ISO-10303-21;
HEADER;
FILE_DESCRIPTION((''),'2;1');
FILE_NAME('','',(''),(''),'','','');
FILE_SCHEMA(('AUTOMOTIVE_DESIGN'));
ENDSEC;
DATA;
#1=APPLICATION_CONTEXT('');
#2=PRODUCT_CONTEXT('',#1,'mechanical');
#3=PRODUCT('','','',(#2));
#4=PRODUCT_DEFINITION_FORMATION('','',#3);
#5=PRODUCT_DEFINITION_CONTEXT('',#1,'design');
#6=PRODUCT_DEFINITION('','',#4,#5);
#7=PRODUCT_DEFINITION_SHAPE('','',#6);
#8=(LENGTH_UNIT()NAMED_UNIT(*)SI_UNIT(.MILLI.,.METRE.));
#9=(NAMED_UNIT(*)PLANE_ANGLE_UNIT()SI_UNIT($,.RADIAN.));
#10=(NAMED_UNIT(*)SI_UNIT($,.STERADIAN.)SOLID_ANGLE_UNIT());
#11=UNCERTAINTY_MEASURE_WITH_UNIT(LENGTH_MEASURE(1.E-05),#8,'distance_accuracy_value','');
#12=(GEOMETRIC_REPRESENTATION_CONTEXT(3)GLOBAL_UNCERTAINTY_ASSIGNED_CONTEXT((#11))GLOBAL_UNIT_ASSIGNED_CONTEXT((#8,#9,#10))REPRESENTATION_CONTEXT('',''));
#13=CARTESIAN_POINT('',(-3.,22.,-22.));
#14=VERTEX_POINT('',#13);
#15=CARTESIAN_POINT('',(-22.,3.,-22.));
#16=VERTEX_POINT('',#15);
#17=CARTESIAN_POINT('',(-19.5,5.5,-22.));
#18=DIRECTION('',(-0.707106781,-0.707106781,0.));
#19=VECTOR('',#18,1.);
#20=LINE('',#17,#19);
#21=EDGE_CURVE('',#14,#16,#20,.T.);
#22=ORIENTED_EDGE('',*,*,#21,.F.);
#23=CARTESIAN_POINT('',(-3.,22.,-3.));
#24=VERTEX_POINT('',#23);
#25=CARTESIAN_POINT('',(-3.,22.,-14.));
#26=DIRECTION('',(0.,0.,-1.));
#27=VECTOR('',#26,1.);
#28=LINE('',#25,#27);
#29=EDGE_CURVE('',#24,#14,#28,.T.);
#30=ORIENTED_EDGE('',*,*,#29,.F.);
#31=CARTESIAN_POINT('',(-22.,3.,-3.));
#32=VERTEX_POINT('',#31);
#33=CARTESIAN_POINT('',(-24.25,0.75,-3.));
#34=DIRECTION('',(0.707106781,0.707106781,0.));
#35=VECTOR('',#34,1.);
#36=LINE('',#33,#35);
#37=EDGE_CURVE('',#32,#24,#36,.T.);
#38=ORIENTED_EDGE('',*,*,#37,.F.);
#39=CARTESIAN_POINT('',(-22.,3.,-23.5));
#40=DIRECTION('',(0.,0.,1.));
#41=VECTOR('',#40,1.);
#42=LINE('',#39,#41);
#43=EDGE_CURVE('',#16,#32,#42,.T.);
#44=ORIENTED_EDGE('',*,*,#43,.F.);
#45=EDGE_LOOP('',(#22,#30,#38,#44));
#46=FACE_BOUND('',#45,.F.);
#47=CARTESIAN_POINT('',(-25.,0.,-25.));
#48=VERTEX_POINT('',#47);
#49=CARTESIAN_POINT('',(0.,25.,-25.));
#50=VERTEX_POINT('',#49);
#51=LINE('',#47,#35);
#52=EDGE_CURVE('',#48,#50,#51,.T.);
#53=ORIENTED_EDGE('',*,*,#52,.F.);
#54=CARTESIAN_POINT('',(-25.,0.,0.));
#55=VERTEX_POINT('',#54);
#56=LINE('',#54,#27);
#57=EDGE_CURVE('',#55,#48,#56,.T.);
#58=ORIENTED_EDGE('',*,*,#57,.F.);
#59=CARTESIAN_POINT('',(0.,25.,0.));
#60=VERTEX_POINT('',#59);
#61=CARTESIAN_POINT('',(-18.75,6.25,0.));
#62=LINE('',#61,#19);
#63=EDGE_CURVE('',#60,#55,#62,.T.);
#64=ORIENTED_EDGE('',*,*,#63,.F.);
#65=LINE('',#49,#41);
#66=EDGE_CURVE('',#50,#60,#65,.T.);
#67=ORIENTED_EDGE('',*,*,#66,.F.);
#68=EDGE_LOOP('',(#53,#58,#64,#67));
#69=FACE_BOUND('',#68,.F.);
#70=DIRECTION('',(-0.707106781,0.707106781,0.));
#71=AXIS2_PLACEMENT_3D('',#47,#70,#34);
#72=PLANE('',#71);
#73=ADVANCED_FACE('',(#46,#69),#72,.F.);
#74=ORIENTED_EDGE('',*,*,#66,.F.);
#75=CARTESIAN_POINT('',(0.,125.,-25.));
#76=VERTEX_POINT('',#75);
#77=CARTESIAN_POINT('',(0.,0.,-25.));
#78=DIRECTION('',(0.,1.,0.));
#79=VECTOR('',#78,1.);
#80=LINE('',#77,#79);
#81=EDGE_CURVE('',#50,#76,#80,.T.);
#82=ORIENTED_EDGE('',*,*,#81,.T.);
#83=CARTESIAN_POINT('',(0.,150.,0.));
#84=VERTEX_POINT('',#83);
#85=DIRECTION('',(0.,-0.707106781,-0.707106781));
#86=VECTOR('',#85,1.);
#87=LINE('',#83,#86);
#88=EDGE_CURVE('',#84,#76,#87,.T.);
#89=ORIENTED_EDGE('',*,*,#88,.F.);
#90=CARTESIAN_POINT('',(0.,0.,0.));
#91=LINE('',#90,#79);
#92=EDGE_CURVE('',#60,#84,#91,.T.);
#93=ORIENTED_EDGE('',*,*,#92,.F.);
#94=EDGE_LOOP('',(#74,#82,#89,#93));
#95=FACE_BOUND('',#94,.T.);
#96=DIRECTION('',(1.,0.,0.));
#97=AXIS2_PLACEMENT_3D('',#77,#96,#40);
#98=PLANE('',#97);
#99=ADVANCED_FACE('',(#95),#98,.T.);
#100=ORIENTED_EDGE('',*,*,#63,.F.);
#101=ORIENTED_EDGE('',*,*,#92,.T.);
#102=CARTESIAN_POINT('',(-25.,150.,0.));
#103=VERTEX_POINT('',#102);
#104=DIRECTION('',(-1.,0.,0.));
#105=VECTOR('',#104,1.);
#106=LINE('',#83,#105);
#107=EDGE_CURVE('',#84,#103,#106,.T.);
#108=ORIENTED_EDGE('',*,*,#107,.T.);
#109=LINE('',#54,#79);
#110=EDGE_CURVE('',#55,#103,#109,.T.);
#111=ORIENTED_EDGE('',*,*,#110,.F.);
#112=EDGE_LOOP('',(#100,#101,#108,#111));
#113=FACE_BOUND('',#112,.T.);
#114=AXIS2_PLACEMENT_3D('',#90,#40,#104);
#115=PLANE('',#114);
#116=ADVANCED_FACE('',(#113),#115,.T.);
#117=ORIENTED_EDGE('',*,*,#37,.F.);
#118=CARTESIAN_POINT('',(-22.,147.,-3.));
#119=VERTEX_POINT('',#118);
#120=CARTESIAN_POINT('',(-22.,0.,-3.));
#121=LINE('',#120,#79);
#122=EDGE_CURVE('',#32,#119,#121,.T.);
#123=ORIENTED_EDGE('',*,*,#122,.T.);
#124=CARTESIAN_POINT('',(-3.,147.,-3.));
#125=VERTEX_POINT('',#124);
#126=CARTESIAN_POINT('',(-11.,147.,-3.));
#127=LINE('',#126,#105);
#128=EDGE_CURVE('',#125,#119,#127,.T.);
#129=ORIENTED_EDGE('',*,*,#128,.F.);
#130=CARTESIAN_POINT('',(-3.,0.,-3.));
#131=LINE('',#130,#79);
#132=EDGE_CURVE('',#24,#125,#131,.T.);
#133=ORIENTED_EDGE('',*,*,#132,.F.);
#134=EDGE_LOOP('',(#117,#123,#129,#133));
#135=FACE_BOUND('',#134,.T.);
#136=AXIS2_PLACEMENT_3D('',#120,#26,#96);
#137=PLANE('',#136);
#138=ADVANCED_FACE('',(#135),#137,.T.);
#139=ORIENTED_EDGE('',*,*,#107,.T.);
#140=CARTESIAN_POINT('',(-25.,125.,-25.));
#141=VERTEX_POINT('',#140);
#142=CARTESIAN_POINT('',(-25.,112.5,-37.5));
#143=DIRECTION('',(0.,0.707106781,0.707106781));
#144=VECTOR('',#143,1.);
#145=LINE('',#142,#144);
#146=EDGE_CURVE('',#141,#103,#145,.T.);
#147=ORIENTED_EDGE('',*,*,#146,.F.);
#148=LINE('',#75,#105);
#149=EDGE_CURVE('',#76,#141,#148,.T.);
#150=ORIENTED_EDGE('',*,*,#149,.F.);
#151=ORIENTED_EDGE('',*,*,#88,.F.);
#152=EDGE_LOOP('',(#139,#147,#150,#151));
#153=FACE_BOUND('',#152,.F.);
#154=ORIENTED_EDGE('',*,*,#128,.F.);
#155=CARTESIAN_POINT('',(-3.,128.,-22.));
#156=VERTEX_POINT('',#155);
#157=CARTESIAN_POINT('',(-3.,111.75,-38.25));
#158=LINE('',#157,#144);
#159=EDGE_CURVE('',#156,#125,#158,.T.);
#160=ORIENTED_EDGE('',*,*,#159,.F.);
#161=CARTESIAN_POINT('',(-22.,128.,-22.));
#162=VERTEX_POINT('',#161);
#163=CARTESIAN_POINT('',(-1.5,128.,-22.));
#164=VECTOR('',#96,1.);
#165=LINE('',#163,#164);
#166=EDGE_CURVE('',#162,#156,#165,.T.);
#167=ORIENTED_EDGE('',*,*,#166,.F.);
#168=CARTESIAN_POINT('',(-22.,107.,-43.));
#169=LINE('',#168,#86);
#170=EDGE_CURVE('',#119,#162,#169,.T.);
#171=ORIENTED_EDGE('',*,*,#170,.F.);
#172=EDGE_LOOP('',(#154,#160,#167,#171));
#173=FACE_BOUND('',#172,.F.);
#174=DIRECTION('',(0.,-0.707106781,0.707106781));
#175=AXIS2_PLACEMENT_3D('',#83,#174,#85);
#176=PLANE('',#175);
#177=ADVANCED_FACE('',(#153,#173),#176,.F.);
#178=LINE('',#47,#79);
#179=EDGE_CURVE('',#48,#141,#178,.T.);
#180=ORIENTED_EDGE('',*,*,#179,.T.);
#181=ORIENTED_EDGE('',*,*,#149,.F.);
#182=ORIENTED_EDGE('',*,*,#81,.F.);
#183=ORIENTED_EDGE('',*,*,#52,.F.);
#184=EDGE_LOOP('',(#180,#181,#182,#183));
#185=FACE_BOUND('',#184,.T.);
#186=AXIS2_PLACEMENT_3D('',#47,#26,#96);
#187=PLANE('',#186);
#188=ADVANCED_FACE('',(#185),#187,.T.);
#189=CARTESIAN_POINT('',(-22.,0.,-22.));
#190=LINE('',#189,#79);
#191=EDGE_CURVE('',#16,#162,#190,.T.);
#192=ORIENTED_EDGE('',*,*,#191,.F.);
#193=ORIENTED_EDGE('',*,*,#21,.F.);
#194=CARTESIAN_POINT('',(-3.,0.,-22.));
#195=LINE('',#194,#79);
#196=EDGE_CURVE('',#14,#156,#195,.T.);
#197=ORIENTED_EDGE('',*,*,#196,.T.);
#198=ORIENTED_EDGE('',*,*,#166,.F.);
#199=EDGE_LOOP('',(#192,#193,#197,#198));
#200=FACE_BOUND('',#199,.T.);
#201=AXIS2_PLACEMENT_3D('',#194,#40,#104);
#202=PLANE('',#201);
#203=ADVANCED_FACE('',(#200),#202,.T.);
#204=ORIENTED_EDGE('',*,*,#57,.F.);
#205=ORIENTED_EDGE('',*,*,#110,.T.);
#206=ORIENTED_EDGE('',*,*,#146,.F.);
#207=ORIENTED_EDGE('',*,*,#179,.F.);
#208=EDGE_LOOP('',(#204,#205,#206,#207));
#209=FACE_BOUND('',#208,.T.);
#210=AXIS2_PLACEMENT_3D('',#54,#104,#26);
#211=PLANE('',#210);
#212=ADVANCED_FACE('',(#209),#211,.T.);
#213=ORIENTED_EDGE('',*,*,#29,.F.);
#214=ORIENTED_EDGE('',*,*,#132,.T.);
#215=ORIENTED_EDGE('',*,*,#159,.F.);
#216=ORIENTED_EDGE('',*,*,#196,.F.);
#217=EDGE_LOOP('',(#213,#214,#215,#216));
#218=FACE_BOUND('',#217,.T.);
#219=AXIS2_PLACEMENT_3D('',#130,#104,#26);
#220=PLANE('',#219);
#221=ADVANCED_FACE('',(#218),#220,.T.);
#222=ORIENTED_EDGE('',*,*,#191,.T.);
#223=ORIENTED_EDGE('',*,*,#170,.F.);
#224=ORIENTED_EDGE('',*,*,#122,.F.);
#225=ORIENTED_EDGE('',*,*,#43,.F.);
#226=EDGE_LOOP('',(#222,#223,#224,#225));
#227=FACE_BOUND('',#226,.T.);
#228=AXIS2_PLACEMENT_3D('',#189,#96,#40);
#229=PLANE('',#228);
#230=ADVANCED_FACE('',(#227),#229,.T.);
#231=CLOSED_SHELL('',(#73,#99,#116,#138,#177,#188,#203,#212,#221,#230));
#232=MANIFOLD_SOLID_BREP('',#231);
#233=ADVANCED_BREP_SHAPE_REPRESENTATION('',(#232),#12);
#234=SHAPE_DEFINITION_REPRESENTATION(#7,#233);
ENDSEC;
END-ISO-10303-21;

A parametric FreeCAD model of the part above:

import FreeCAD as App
import Part
import Sketcher

V = App.Vector
Q = App.Units.Quantity

doc = App.newDocument("Part")
body = doc.addObject("PartDesign::Body", "Body")

# Sketch on XZ plane
sketch1 = body.newObject("Sketcher::SketchObject", "Sketch")
sketch1.AttachmentSupport = (doc.getObject("XZ_Plane"), [""])
sketch1.MapMode = "FlatFace"
sketch1.addGeometry([
    Part.LineSegment(V(-25, 0, 0), V(0, 0, 0)),  # 0
    Part.LineSegment(V(0, 0, 0), V(0, -25, 0)),  # 1
    Part.LineSegment(V(0, -25, 0), V(-25, -25, 0)),  # 2
    Part.LineSegment(V(-25, -25, 0), V(-25, 0, 0)),  # 3
    Part.LineSegment(V(-22, -3, 0), V(-22, -22, 0)),  # 4
    Part.LineSegment(V(-22, -22, 0), V(-3, -22, 0)),  # 5
    Part.LineSegment(V(-3, -22, 0), V(-3, -3, 0)),  # 6
    Part.LineSegment(V(-3, -3, 0), V(-22, -3, 0)),  # 7
], False)
sketch1.addConstraint([
    Sketcher.Constraint("Coincident", 0, 2, 1, 1),
    Sketcher.Constraint("Coincident", 1, 2, 2, 1),
    Sketcher.Constraint("Coincident", 2, 2, 3, 1),
    Sketcher.Constraint("Coincident", 3, 2, 0, 1),
    Sketcher.Constraint("Coincident", 4, 2, 5, 1),
    Sketcher.Constraint("Coincident", 5, 2, 6, 1),
    Sketcher.Constraint("Coincident", 6, 2, 7, 1),
    Sketcher.Constraint("Coincident", 7, 2, 4, 1),
    Sketcher.Constraint("Horizontal", 0),
    Sketcher.Constraint("Vertical", 1),
    Sketcher.Constraint("Horizontal", 2),
    Sketcher.Constraint("Vertical", 3),
    Sketcher.Constraint("Vertical", 4),
    Sketcher.Constraint("Horizontal", 5),
    Sketcher.Constraint("Vertical", 6),
    Sketcher.Constraint("Horizontal", 7),
    Sketcher.Constraint("Coincident", 0, 2, -1, 1),
    Sketcher.Constraint("Equal", 2, 1),
    Sketcher.Constraint("Equal", 7, 4),
    Sketcher.Constraint("DistanceX", 0, 1, 0, 2, Q("25 mm")),
    Sketcher.Constraint("DistanceX", 5, 2, -1, 1, Q("3 mm")),
    Sketcher.Constraint("DistanceY", 6, 2, -1, 1, Q("3 mm")),
    Sketcher.Constraint("DistanceX", 2, 2, 4, 2, Q("3 mm")),
])
pad1 = body.newObject("PartDesign::Pad", "Pad")
pad1.Profile = sketch1
pad1.Length = 150
pad1.Reversed = True

# Sketch on YZ plane
sketch2 = body.newObject("Sketcher::SketchObject", "Sketch001")
sketch2.AttachmentSupport = (doc.getObject("YZ_Plane"), [""])
sketch2.MapMode = "FlatFace"
sketch2.addGeometry([
    Part.LineSegment(V(150, -25, 0), V(150, 0, 0)),
    Part.LineSegment(V(150, 0, 0), V(125, -25, 0)),
    Part.LineSegment(V(125, -25, 0), V(150, -25, 0)),
], False)
sketch2.addConstraint([
    Sketcher.Constraint("Coincident", 0, 2, 1, 1),
    Sketcher.Constraint("Coincident", 1, 2, 2, 1),
    Sketcher.Constraint("Coincident", 2, 2, 0, 1),
    Sketcher.Constraint("Vertical", 0),
    Sketcher.Constraint("Horizontal", 2),
    Sketcher.Constraint("PointOnObject", 0, 2, -1),
    Sketcher.Constraint("Equal", 2, 0),
    Sketcher.Constraint("DistanceX", 2, 1, 2, 2, Q("25 mm")),
    Sketcher.Constraint("DistanceX", -1, 1, 0, 2, Q("150 mm")),
])
pocket1 = body.newObject("PartDesign::Pocket", "Pocket")
pocket1.Profile = sketch2
pocket1.Length = 80

# Sketch on XY plane
sketch3 = body.newObject("Sketcher::SketchObject", "Sketch002")
sketch3.AttachmentSupport = (doc.getObject("XY_Plane"), [""])
sketch3.MapMode = "FlatFace"
sketch3.AttachmentOffset = App.Placement(V(0, 0, -25), App.Rotation())
sketch3.addGeometry([
    Part.LineSegment(V(0, 0, 0), V(-25, 0, 0)),
    Part.LineSegment(V(-25, 0, 0), V(0, 25, 0)),
    Part.LineSegment(V(0, 25, 0), V(0, 0, 0)),
], False)
sketch3.addConstraint([
    Sketcher.Constraint("Coincident", 0, 2, 1, 1),
    Sketcher.Constraint("Coincident", 1, 2, 2, 1),
    Sketcher.Constraint("Coincident", 2, 2, 0, 1),
    Sketcher.Constraint("Horizontal", 0),
    Sketcher.Constraint("Vertical", 2),
    Sketcher.Constraint("Coincident", 2, 2, -1, 1),
    Sketcher.Constraint("Equal", 0, 2),
    Sketcher.Constraint("DistanceX", 0, 2, 0, 1, Q("25 mm")),
])
pocket2 = body.newObject("PartDesign::Pocket", "Pocket001")
pocket2.Profile = sketch3
pocket2.Length = 100
pocket2.Reversed = True

doc.recompute()
